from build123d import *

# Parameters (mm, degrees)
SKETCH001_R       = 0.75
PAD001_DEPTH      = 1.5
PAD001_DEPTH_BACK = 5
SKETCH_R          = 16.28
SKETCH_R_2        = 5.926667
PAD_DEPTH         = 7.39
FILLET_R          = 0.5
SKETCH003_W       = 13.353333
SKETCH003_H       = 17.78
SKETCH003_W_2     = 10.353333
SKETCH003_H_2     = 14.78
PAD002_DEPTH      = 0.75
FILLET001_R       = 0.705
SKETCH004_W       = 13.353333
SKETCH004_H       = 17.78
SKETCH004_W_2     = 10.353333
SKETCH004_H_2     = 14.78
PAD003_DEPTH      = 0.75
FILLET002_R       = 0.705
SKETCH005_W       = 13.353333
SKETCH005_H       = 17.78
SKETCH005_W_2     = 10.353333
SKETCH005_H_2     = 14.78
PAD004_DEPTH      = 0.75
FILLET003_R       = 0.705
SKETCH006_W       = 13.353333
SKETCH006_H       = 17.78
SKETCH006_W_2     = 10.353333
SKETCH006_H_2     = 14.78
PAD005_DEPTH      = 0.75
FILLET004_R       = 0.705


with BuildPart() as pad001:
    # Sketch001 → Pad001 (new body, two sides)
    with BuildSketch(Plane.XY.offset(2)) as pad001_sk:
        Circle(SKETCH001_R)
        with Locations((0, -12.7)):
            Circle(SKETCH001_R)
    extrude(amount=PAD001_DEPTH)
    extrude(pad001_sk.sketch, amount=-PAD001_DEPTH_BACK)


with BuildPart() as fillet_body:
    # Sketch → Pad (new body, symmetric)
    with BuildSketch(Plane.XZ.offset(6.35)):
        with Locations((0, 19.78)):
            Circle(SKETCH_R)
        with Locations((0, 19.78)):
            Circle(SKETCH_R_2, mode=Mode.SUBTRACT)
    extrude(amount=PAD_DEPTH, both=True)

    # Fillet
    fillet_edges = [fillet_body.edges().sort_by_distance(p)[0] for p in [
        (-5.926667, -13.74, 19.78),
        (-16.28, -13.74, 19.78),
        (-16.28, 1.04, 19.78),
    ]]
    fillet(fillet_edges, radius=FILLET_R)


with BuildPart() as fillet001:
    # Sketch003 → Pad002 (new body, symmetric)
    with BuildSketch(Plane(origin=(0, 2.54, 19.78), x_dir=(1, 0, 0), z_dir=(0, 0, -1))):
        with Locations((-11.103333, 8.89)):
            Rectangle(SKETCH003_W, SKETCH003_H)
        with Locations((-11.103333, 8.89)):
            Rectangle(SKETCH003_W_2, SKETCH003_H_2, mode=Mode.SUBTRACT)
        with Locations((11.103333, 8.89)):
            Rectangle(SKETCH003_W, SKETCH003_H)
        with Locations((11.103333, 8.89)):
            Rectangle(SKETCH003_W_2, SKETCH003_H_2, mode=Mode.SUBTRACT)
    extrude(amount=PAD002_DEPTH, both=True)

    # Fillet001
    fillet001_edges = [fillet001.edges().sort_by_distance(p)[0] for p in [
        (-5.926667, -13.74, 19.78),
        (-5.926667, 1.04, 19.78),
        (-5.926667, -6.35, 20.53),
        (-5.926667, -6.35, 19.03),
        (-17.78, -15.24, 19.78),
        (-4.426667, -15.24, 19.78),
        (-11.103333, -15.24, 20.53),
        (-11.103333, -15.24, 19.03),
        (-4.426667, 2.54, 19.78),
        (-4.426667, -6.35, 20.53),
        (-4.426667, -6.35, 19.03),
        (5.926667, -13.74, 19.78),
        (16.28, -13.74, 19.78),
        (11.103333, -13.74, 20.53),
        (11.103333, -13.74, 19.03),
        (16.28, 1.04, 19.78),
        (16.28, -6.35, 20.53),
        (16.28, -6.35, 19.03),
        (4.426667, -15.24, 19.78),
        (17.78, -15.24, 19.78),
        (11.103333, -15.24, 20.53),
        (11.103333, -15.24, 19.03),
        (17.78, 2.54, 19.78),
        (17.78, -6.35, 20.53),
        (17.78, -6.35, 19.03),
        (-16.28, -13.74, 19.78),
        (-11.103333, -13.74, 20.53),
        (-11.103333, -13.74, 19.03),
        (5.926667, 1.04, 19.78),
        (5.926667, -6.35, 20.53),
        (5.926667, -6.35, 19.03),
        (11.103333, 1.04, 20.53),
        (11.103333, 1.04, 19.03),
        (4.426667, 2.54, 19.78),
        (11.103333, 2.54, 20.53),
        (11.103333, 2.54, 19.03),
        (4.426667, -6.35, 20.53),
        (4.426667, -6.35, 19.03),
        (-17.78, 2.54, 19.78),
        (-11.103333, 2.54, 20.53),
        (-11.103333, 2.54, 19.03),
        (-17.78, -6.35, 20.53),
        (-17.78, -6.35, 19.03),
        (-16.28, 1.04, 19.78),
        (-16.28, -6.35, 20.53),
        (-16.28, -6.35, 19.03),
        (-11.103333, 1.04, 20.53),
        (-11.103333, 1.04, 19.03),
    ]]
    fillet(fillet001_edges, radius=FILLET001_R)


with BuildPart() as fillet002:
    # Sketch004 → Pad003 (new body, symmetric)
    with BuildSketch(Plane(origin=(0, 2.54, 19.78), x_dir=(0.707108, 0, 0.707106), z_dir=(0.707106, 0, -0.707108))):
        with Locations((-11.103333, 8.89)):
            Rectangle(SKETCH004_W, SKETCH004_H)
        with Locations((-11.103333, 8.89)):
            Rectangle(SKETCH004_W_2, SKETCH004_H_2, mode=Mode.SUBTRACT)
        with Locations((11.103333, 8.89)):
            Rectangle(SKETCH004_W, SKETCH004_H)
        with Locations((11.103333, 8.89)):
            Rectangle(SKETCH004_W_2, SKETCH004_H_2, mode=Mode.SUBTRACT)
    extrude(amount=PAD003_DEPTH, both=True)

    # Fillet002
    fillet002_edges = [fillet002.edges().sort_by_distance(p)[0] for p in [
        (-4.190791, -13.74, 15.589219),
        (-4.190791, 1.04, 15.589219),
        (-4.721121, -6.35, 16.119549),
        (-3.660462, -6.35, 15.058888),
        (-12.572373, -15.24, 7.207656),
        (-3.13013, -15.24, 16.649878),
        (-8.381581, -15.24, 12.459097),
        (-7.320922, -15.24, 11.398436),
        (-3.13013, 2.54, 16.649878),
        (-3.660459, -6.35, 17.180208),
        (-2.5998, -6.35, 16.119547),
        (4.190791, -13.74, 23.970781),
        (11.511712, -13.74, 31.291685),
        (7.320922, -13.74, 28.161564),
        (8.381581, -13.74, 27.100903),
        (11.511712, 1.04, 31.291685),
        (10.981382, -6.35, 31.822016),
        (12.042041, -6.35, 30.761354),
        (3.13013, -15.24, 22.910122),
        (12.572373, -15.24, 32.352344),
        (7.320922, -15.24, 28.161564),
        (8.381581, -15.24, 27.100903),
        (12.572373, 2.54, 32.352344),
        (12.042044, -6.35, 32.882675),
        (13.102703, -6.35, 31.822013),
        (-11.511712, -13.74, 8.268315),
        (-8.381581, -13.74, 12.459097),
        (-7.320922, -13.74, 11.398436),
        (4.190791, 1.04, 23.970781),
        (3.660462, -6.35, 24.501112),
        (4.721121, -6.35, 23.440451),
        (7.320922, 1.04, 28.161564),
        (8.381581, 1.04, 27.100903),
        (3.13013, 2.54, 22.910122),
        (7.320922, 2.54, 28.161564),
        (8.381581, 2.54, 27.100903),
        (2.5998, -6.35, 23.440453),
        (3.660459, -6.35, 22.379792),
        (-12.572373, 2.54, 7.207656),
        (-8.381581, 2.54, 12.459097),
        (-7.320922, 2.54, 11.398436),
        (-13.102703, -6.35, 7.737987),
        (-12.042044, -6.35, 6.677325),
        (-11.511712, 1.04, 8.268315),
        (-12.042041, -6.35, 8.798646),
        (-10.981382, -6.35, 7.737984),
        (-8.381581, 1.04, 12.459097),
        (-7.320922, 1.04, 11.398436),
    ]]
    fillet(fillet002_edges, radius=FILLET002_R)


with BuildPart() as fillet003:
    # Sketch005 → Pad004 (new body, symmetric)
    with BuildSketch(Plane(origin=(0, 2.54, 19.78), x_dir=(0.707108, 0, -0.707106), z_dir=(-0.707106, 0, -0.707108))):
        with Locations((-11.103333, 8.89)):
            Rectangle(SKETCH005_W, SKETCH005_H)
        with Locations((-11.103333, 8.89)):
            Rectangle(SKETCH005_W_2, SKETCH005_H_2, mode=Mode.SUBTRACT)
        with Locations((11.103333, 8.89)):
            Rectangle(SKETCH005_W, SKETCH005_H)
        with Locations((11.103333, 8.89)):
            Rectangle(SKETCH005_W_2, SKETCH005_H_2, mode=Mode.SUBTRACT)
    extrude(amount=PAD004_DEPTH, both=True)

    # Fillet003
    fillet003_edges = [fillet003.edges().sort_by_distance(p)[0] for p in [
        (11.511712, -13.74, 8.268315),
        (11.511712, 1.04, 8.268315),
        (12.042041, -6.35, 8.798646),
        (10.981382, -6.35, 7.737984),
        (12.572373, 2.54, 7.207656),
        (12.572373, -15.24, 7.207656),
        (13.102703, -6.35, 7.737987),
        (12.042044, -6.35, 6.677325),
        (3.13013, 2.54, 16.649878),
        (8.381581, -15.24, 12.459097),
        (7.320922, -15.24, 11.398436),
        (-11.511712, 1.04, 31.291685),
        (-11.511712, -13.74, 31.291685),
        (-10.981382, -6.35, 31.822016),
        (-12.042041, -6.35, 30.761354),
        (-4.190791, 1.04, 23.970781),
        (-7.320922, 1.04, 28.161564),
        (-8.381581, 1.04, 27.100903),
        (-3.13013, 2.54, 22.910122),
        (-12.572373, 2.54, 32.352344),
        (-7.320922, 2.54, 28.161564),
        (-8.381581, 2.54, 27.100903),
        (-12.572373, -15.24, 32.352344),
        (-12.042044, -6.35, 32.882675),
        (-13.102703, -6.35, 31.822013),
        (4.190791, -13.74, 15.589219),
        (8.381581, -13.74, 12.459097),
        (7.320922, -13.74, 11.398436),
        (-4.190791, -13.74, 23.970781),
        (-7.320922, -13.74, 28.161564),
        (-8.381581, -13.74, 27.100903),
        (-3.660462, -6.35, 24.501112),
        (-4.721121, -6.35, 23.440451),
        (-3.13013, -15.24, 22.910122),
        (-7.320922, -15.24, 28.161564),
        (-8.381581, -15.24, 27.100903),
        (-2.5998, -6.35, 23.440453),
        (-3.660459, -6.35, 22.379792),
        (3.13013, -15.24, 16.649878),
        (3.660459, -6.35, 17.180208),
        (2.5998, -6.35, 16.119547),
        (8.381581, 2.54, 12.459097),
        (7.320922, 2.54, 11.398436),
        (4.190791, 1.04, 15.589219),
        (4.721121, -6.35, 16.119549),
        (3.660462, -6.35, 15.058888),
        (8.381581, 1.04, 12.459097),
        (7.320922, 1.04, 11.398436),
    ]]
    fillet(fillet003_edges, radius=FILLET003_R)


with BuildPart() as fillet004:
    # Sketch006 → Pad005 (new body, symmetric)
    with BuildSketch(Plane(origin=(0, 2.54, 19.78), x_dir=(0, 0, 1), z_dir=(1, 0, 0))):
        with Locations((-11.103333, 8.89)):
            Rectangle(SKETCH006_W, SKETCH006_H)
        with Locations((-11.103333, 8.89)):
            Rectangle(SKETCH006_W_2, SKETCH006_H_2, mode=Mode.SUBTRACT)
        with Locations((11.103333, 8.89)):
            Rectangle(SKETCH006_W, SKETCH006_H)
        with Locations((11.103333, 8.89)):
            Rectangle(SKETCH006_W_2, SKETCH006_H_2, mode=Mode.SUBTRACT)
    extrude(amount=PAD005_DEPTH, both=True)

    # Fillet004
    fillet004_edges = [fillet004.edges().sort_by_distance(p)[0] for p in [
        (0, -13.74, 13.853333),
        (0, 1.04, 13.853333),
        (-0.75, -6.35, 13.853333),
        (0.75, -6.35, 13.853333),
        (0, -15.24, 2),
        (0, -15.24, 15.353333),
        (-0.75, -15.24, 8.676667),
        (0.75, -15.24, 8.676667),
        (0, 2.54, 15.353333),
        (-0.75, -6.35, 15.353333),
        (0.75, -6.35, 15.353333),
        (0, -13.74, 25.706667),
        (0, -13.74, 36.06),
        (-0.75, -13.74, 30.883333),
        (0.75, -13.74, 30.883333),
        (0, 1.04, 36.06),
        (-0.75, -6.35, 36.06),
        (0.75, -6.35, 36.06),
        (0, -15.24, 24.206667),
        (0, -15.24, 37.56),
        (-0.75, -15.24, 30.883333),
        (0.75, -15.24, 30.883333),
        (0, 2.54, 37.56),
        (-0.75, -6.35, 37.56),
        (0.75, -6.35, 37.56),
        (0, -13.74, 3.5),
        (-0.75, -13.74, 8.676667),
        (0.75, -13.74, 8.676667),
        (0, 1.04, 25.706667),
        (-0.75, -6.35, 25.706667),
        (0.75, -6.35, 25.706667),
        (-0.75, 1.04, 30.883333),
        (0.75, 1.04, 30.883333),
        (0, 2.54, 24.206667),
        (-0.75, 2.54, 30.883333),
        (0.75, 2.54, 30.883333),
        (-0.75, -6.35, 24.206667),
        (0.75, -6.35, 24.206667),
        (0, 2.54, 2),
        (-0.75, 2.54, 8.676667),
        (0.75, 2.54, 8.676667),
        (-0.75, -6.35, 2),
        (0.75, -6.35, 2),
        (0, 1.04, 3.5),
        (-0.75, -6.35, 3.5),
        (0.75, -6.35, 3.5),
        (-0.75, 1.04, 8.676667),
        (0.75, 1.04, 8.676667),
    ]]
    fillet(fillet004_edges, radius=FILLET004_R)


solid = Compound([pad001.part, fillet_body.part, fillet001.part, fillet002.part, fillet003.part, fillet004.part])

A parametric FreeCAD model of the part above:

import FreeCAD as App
import Part
import Sketcher
from FreeCAD import Vector


def edges_at(feature, points):
    """Names of the edges that pass closest to the given points."""
    edges = feature.Shape.Edges
    near = lambda p: min(range(len(edges)), key=lambda i: edges[i].distToShape(Part.Vertex(*p))[0])
    return sorted({f"Edge{near(p) + 1}" for p in points})

doc = App.newDocument("Part")
params = doc.addObject("Spreadsheet::Sheet", "Params")
for row, (alias, value) in enumerate([
    ("sketch1_diameter", "1.5 mm"),
    ("pad1_length", "1.5 mm"),
    ("pad1_length2", "5 mm"),
    ("sketch2_diameter", "32.56 mm"),
    ("pad2_length", "14.78 mm"),
    ("fillet_radius", "0.5 mm"),
    ("sketch3_height", "17.78 mm"),
    ("sketch3_height2", "14.78 mm"),
    ("pad3_length", "1.5 mm"),
    ("fillet2_radius", "0.705 mm"),
    ("sketch4_height", "17.78 mm"),
    ("sketch4_height2", "14.78 mm"),
    ("pad4_length", "1.5 mm"),
    ("fillet3_radius", "0.705 mm"),
    ("sketch5_height", "17.78 mm"),
    ("sketch5_height2", "14.78 mm"),
    ("pad5_length", "1.5 mm"),
    ("fillet4_radius", "0.705 mm"),
    ("sketch6_width", "17.78 mm"),
    ("sketch6_width2", "14.78 mm"),
    ("pad6_length", "1.5 mm"),
    ("fillet5_radius", "0.705 mm"),
], start=1):
    params.set(f"A{row}", alias)
    params.set(f"B{row}", "=" + value)
    params.setAlias(f"B{row}", alias)

body = doc.addObject("PartDesign::Body", "Body")
body.AllowCompound = True

# Sketch on XY plane
sketch1 = doc.addObject("Sketcher::SketchObject", "Sketch")
body.addObject(sketch1)
sketch1.AttachmentSupport = (doc.XY_Plane, [""])
sketch1.MapMode = "FlatFace"
sketch1.AttachmentOffset = App.Placement(Vector(0, 0, 2), App.Rotation())
sketch1.addGeometry([
    Part.Circle(Vector(0, 0, 0), Vector(0, 0, 1), 0.8),
    Part.Circle(Vector(0, -12.7, 0), Vector(0, 0, 1), 0.8),
], False)
sketch1.addConstraint([
    Sketcher.Constraint("Coincident", 0, 3, -1, 1),
    Sketcher.Constraint("Equal", 0, 1),
    Sketcher.Constraint("PointOnObject", 1, 3, -2),
    Sketcher.Constraint("Diameter", 0, 1.5),
    Sketcher.Constraint("DistanceY", 1, 3, -1, 1, 12.7),
])
sketch1.setExpression("Constraints[3]", "Params.sketch1_diameter")
pad1 = doc.addObject("PartDesign::Pad", "Pad")
body.addObject(pad1)
pad1.Profile = sketch1
pad1.Type = "TwoLengths"
pad1.setExpression("Length", "Params.pad1_length")
pad1.setExpression("Length2", "Params.pad1_length2")
body2 = doc.addObject("PartDesign::Body", "Body001")

# Sketch on XZ plane
sketch2 = doc.addObject("Sketcher::SketchObject", "Sketch001")
body2.addObject(sketch2)
sketch2.AttachmentSupport = (doc.getObject("XZ_Plane001"), [""])
sketch2.MapMode = "FlatFace"
sketch2.AttachmentOffset = App.Placement(Vector(0, 0, 6.35), App.Rotation())
sketch2.addGeometry([
    Part.Circle(Vector(0, 20, 0), Vector(0, 0, 1), 16),
    Part.Circle(Vector(0, 20, 0), Vector(0, 0, 1), 6),
], False)
sketch2.addConstraint([
    Sketcher.Constraint("Coincident", 1, 3, 0, 3),
    Sketcher.Constraint("PointOnObject", 0, 3, -2),
    Sketcher.Constraint("Diameter", 0, 32.56),
    Sketcher.Constraint("DistanceY", -1, 1, 0, 3, 19.78),
    Sketcher.Constraint("Diameter", 1, 11.853334),
])
sketch2.setExpression("Constraints[2]", "Params.sketch2_diameter")
pad2 = doc.addObject("PartDesign::Pad", "Pad001")
body2.addObject(pad2)
pad2.Profile = sketch2
pad2.setExpression("Length", "Params.pad2_length")
pad2.Midplane = True
doc.recompute()

fillet = doc.addObject("PartDesign::Fillet", "Fillet")
body2.addObject(fillet)
fillet.Base = (pad2, edges_at(pad2, [(-5.927, -13.74, 19.78), (-16.28, -13.74, 19.78), (-16.28, 1.04, 19.78)]))
fillet.setExpression("Radius", "Params.fillet_radius")
body3 = doc.addObject("PartDesign::Body", "Body002")
body3.AllowCompound = True

# Sketch on XY plane
sketch3 = doc.addObject("Sketcher::SketchObject", "Sketch002")
body3.addObject(sketch3)
sketch3.AttachmentSupport = (doc.getObject("XY_Plane002"), [""])
sketch3.MapMode = "FlatFace"
sketch3.AttachmentOffset = App.Placement(Vector(0, 0, 19.78), App.Rotation())
sketch3.addGeometry([
    Part.LineSegment(Vector(-18, -15, 0), Vector(-18, 3, 0)),  # 0
    Part.LineSegment(Vector(-18, 3, 0), Vector(-4, 3, 0)),  # 1
    Part.LineSegment(Vector(-4, 3, 0), Vector(-4, -15, 0)),  # 2
    Part.LineSegment(Vector(-4, -15, 0), Vector(-18, -15, 0)),  # 3
    Part.LineSegment(Vector(-6, 1, 0), Vector(-16, 1, 0)),  # 4
    Part.LineSegment(Vector(-16, 1, 0), Vector(-16, -14, 0)),  # 5
    Part.LineSegment(Vector(-16, -14, 0), Vector(-6, -14, 0)),  # 6
    Part.LineSegment(Vector(-6, -14, 0), Vector(-6, 1, 0)),  # 7
    Part.LineSegment(Vector(4, -15, 0), Vector(4, 3, 0)),  # 8
    Part.LineSegment(Vector(4, 3, 0), Vector(18, 3, 0)),  # 9
    Part.LineSegment(Vector(18, 3, 0), Vector(18, -15, 0)),  # 10
    Part.LineSegment(Vector(18, -15, 0), Vector(4, -15, 0)),  # 11
    Part.LineSegment(Vector(16, 1, 0), Vector(6, 1, 0)),  # 12
    Part.LineSegment(Vector(6, 1, 0), Vector(6, -14, 0)),  # 13
    Part.LineSegment(Vector(6, -14, 0), Vector(16, -14, 0)),  # 14
    Part.LineSegment(Vector(16, -14, 0), Vector(16, 1, 0)),  # 15
], False)
sketch3.addConstraint([
    Sketcher.Constraint("Coincident", 0, 2, 1, 1),
    Sketcher.Constraint("Coincident", 1, 2, 2, 1),
    Sketcher.Constraint("Coincident", 2, 2, 3, 1),
    Sketcher.Constraint("Coincident", 3, 2, 0, 1),
    Sketcher.Constraint("Coincident", 4, 2, 5, 1),
    Sketcher.Constraint("Coincident", 5, 2, 6, 1),
    Sketcher.Constraint("Coincident", 6, 2, 7, 1),
    Sketcher.Constraint("Coincident", 7, 2, 4, 1),
    Sketcher.Constraint("Coincident", 8, 2, 9, 1),
    Sketcher.Constraint("Coincident", 9, 2, 10, 1),
    Sketcher.Constraint("Coincident", 10, 2, 11, 1),
    Sketcher.Constraint("Coincident", 11, 2, 8, 1),
    Sketcher.Constraint("Coincident", 12, 2, 13, 1),
    Sketcher.Constraint("Coincident", 13, 2, 14, 1),
    Sketcher.Constraint("Coincident", 14, 2, 15, 1),
    Sketcher.Constraint("Coincident", 15, 2, 12, 1),
    Sketcher.Constraint("Vertical", 0),
    Sketcher.Constraint("Horizontal", 1),
    Sketcher.Constraint("Vertical", 2),
    Sketcher.Constraint("Horizontal", 3),
    Sketcher.Constraint("Horizontal", 4),
    Sketcher.Constraint("Vertical", 5),
    Sketcher.Constraint("Horizontal", 6),
    Sketcher.Constraint("Vertical", 7),
    Sketcher.Constraint("Vertical", 8),
    Sketcher.Constraint("Horizontal", 9),
    Sketcher.Constraint("Vertical", 10),
    Sketcher.Constraint("Horizontal", 11),
    Sketcher.Constraint("Horizontal", 12),
    Sketcher.Constraint("Vertical", 13),
    Sketcher.Constraint("Horizontal", 14),
    Sketcher.Constraint("Vertical", 15),
    Sketcher.Constraint("Symmetric", 1, 2, 8, 2, -2),
    Sketcher.Constraint("Symmetric", 3, 2, 10, 2, -2),
    Sketcher.Constraint("Symmetric", 7, 2, 12, 2, -2),
    Sketcher.Constraint("Symmetric", 5, 2, 14, 2, -2),
    Sketcher.Constraint("DistanceY", 0, 1, 0, 2, 17.78),
    Sketcher.Constraint("DistanceY", 5, 2, 5, 1, 14.78),
    Sketcher.Constraint("DistanceX", 0, 2, 4, 2, 1.5),
    Sketcher.Constraint("DistanceY", 4, 2, 0, 2, 1.5),
    Sketcher.Constraint("DistanceX", 6, 2, 2, 2, 1.5),
    Sketcher.Constraint("DistanceX", 0, 2, -1, 1, 17.779999),
    Sketcher.Constraint("DistanceY", -1, 1, 0, 2, 2.54),
    Sketcher.Constraint("DistanceX", 1, 1, 1, 2, 13.353333),
])
sketch3.setExpression("Constraints[36]", "Params.sketch3_height")
sketch3.setExpression("Constraints[37]", "Params.sketch3_height2")
pad3 = doc.addObject("PartDesign::Pad", "Pad002")
body3.addObject(pad3)
pad3.Profile = sketch3
pad3.setExpression("Length", "Params.pad3_length")
pad3.Midplane = True
doc.recompute()

fillet2 = doc.addObject("PartDesign::Fillet", "Fillet001")
body3.addObject(fillet2)
fillet2.Base = (pad3, ["Edge1"])
fillet2.UseAllEdges = True
fillet2.setExpression("Radius", "Params.fillet2_radius")
body4 = doc.addObject("PartDesign::Body", "Body003")
body4.AllowCompound = True

# Sketch on an angled plane
sketch4 = doc.addObject("Sketcher::SketchObject", "Sketch003")
body4.addObject(sketch4)
sketch4.Placement = App.Placement(Vector(0, 2.54, 19.78), App.Rotation(Vector(0.707107781, 0, 0.707105781), Vector(0, -0.999999999, 0), Vector(0.707105781, 0, -0.707107781), "ZXY"))
sketch4.addGeometry([
    Part.LineSegment(Vector(-18, 18, 0), Vector(-18, 0, 0)),  # 0
    Part.LineSegment(Vector(-18, 0, 0), Vector(-4, 0, 0)),  # 1
    Part.LineSegment(Vector(-4, 0, 0), Vector(-4, 18, 0)),  # 2
    Part.LineSegment(Vector(-4, 18, 0), Vector(-18, 18, 0)),  # 3
    Part.LineSegment(Vector(-6, 1, 0), Vector(-16, 1, 0)),  # 4
    Part.LineSegment(Vector(-16, 1, 0), Vector(-16, 16, 0)),  # 5
    Part.LineSegment(Vector(-16, 16, 0), Vector(-6, 16, 0)),  # 6
    Part.LineSegment(Vector(-6, 16, 0), Vector(-6, 1, 0)),  # 7
    Part.LineSegment(Vector(4, 18, 0), Vector(4, 0, 0)),  # 8
    Part.LineSegment(Vector(4, 0, 0), Vector(18, 0, 0)),  # 9
    Part.LineSegment(Vector(18, 0, 0), Vector(18, 18, 0)),  # 10
    Part.LineSegment(Vector(18, 18, 0), Vector(4, 18, 0)),  # 11
    Part.LineSegment(Vector(16, 1, 0), Vector(6, 1, 0)),  # 12
    Part.LineSegment(Vector(6, 1, 0), Vector(6, 16, 0)),  # 13
    Part.LineSegment(Vector(6, 16, 0), Vector(16, 16, 0)),  # 14
    Part.LineSegment(Vector(16, 16, 0), Vector(16, 1, 0)),  # 15
], False)
sketch4.addConstraint([
    Sketcher.Constraint("Coincident", 0, 2, 1, 1),
    Sketcher.Constraint("Coincident", 1, 2, 2, 1),
    Sketcher.Constraint("Coincident", 2, 2, 3, 1),
    Sketcher.Constraint("Coincident", 3, 2, 0, 1),
    Sketcher.Constraint("Coincident", 4, 2, 5, 1),
    Sketcher.Constraint("Coincident", 5, 2, 6, 1),
    Sketcher.Constraint("Coincident", 6, 2, 7, 1),
    Sketcher.Constraint("Coincident", 7, 2, 4, 1),
    Sketcher.Constraint("Coincident", 8, 2, 9, 1),
    Sketcher.Constraint("Coincident", 9, 2, 10, 1),
    Sketcher.Constraint("Coincident", 10, 2, 11, 1),
    Sketcher.Constraint("Coincident", 11, 2, 8, 1),
    Sketcher.Constraint("Coincident", 12, 2, 13, 1),
    Sketcher.Constraint("Coincident", 13, 2, 14, 1),
    Sketcher.Constraint("Coincident", 14, 2, 15, 1),
    Sketcher.Constraint("Coincident", 15, 2, 12, 1),
    Sketcher.Constraint("Vertical", 0),
    Sketcher.Constraint("Horizontal", 1),
    Sketcher.Constraint("Vertical", 2),
    Sketcher.Constraint("Horizontal", 3),
    Sketcher.Constraint("Horizontal", 4),
    Sketcher.Constraint("Vertical", 5),
    Sketcher.Constraint("Horizontal", 6),
    Sketcher.Constraint("Vertical", 7),
    Sketcher.Constraint("Vertical", 8),
    Sketcher.Constraint("Horizontal", 9),
    Sketcher.Constraint("Vertical", 10),
    Sketcher.Constraint("Horizontal", 11),
    Sketcher.Constraint("Horizontal", 12),
    Sketcher.Constraint("Vertical", 13),
    Sketcher.Constraint("Horizontal", 14),
    Sketcher.Constraint("Vertical", 15),
    Sketcher.Constraint("Symmetric", 1, 2, 8, 2, -1, 1),
    Sketcher.Constraint("Symmetric", 0, 2, 9, 2, -2),
    Sketcher.Constraint("Symmetric", 7, 2, 12, 2, -2),
    Sketcher.Constraint("Symmetric", 5, 2, 14, 2, -2),
    Sketcher.Constraint("Horizontal", 3, 2, 10, 2),
    Sketcher.Constraint("DistanceY", 0, 2, 0, 1, 17.78),
    Sketcher.Constraint("DistanceY", 5, 1, 5, 2, 14.78),
    Sketcher.Constraint("DistanceY", -1, 1, 4, 2, 1.5),
    Sketcher.Constraint("DistanceX", 0, 2, 4, 2, 1.5),
    Sketcher.Constraint("DistanceX", 6, 2, 2, 2, 1.5),
    Sketcher.Constraint("DistanceX", 0, 2, -1, 1, 17.779999),
    Sketcher.Constraint("DistanceX", 1, 1, 1, 2, 13.353333),
])
sketch4.setExpression("Constraints[37]", "Params.sketch4_height")
sketch4.setExpression("Constraints[38]", "Params.sketch4_height2")
pad4 = doc.addObject("PartDesign::Pad", "Pad003")
body4.addObject(pad4)
pad4.Profile = sketch4
pad4.setExpression("Length", "Params.pad4_length")
pad4.Midplane = True
doc.recompute()

fillet3 = doc.addObject("PartDesign::Fillet", "Fillet002")
body4.addObject(fillet3)
fillet3.Base = (pad4, ["Edge1"])
fillet3.UseAllEdges = True
fillet3.setExpression("Radius", "Params.fillet3_radius")
body5 = doc.addObject("PartDesign::Body", "Body004")
body5.AllowCompound = True

# Sketch on an angled plane
sketch5 = doc.addObject("Sketcher::SketchObject", "Sketch004")
body5.addObject(sketch5)
sketch5.Placement = App.Placement(Vector(0, 2.54, 19.78), App.Rotation(Vector(0.707107781, 0, -0.707105781), Vector(0, -0.999999999, 0), Vector(-0.707105781, 0, -0.707107781), "ZXY"))
sketch5.addGeometry([
    Part.LineSegment(Vector(-18, 18, 0), Vector(-18, 0, 0)),  # 0
    Part.LineSegment(Vector(-18, 0, 0), Vector(-4, 0, 0)),  # 1
    Part.LineSegment(Vector(-4, 0, 0), Vector(-4, 18, 0)),  # 2
    Part.LineSegment(Vector(-4, 18, 0), Vector(-18, 18, 0)),  # 3
    Part.LineSegment(Vector(-6, 1, 0), Vector(-16, 1, 0)),  # 4
    Part.LineSegment(Vector(-16, 1, 0), Vector(-16, 16, 0)),  # 5
    Part.LineSegment(Vector(-16, 16, 0), Vector(-6, 16, 0)),  # 6
    Part.LineSegment(Vector(-6, 16, 0), Vector(-6, 1, 0)),  # 7
    Part.LineSegment(Vector(4, 18, 0), Vector(4, 0, 0)),  # 8
    Part.LineSegment(Vector(4, 0, 0), Vector(18, 0, 0)),  # 9
    Part.LineSegment(Vector(18, 0, 0), Vector(18, 18, 0)),  # 10
    Part.LineSegment(Vector(18, 18, 0), Vector(4, 18, 0)),  # 11
    Part.LineSegment(Vector(16, 1, 0), Vector(6, 1, 0)),  # 12
    Part.LineSegment(Vector(6, 1, 0), Vector(6, 16, 0)),  # 13
    Part.LineSegment(Vector(6, 16, 0), Vector(16, 16, 0)),  # 14
    Part.LineSegment(Vector(16, 16, 0), Vector(16, 1, 0)),  # 15
], False)
sketch5.addConstraint([
    Sketcher.Constraint("Coincident", 0, 2, 1, 1),
    Sketcher.Constraint("Coincident", 1, 2, 2, 1),
    Sketcher.Constraint("Coincident", 2, 2, 3, 1),
    Sketcher.Constraint("Coincident", 3, 2, 0, 1),
    Sketcher.Constraint("Coincident", 4, 2, 5, 1),
    Sketcher.Constraint("Coincident", 5, 2, 6, 1),
    Sketcher.Constraint("Coincident", 6, 2, 7, 1),
    Sketcher.Constraint("Coincident", 7, 2, 4, 1),
    Sketcher.Constraint("Coincident", 8, 2, 9, 1),
    Sketcher.Constraint("Coincident", 9, 2, 10, 1),
    Sketcher.Constraint("Coincident", 10, 2, 11, 1),
    Sketcher.Constraint("Coincident", 11, 2, 8, 1),
    Sketcher.Constraint("Coincident", 12, 2, 13, 1),
    Sketcher.Constraint("Coincident", 13, 2, 14, 1),
    Sketcher.Constraint("Coincident", 14, 2, 15, 1),
    Sketcher.Constraint("Coincident", 15, 2, 12, 1),
    Sketcher.Constraint("Vertical", 0),
    Sketcher.Constraint("Horizontal", 1),
    Sketcher.Constraint("Vertical", 2),
    Sketcher.Constraint("Horizontal", 3),
    Sketcher.Constraint("Horizontal", 4),
    Sketcher.Constraint("Vertical", 5),
    Sketcher.Constraint("Horizontal", 6),
    Sketcher.Constraint("Vertical", 7),
    Sketcher.Constraint("Vertical", 8),
    Sketcher.Constraint("Horizontal", 9),
    Sketcher.Constraint("Vertical", 10),
    Sketcher.Constraint("Horizontal", 11),
    Sketcher.Constraint("Horizontal", 12),
    Sketcher.Constraint("Vertical", 13),
    Sketcher.Constraint("Horizontal", 14),
    Sketcher.Constraint("Vertical", 15),
    Sketcher.Constraint("Symmetric", 1, 2, 8, 2, -1, 1),
    Sketcher.Constraint("Symmetric", 0, 2, 9, 2, -2),
    Sketcher.Constraint("Symmetric", 7, 2, 12, 2, -2),
    Sketcher.Constraint("Symmetric", 5, 2, 14, 2, -2),
    Sketcher.Constraint("Horizontal", 3, 2, 10, 2),
    Sketcher.Constraint("DistanceY", 0, 2, 0, 1, 17.78),
    Sketcher.Constraint("DistanceY", 5, 1, 5, 2, 14.78),
    Sketcher.Constraint("DistanceY", -1, 1, 4, 2, 1.5),
    Sketcher.Constraint("DistanceX", 0, 2, 4, 2, 1.5),
    Sketcher.Constraint("DistanceX", 6, 2, 2, 2, 1.5),
    Sketcher.Constraint("DistanceX", 0, 2, -1, 1, 17.779999),
    Sketcher.Constraint("DistanceX", 1, 1, 1, 2, 13.353333),
])
sketch5.setExpression("Constraints[37]", "Params.sketch5_height")
sketch5.setExpression("Constraints[38]", "Params.sketch5_height2")
pad5 = doc.addObject("PartDesign::Pad", "Pad004")
body5.addObject(pad5)
pad5.Profile = sketch5
pad5.setExpression("Length", "Params.pad5_length")
pad5.Midplane = True
doc.recompute()

fillet4 = doc.addObject("PartDesign::Fillet", "Fillet003")
body5.addObject(fillet4)
fillet4.Base = (pad5, ["Edge1"])
fillet4.UseAllEdges = True
fillet4.setExpression("Radius", "Params.fillet4_radius")
body6 = doc.addObject("PartDesign::Body", "Body005")
body6.AllowCompound = True

# Sketch on YZ plane
sketch6 = doc.addObject("Sketcher::SketchObject", "Sketch005")
body6.addObject(sketch6)
sketch6.AttachmentSupport = (doc.getObject("YZ_Plane005"), [""])
sketch6.MapMode = "FlatFace"
sketch6.addGeometry([
    Part.LineSegment(Vector(-15, 2, 0), Vector(3, 2, 0)),  # 0
    Part.LineSegment(Vector(3, 2, 0), Vector(3, 15, 0)),  # 1
    Part.LineSegment(Vector(3, 15, 0), Vector(-15, 15, 0)),  # 2
    Part.LineSegment(Vector(-15, 15, 0), Vector(-15, 2, 0)),  # 3
    Part.LineSegment(Vector(1, 14, 0), Vector(1, 4, 0)),  # 4
    Part.LineSegment(Vector(1, 4, 0), Vector(-14, 4, 0)),  # 5
    Part.LineSegment(Vector(-14, 4, 0), Vector(-14, 14, 0)),  # 6
    Part.LineSegment(Vector(-14, 14, 0), Vector(1, 14, 0)),  # 7
    Part.LineSegment(Vector(-15, 24, 0), Vector(3, 24, 0)),  # 8
    Part.LineSegment(Vector(3, 24, 0), Vector(3, 38, 0)),  # 9
    Part.LineSegment(Vector(3, 38, 0), Vector(-15, 38, 0)),  # 10
    Part.LineSegment(Vector(-15, 38, 0), Vector(-15, 24, 0)),  # 11
    Part.LineSegment(Vector(1, 36, 0), Vector(1, 26, 0)),  # 12
    Part.LineSegment(Vector(1, 26, 0), Vector(-14, 26, 0)),  # 13
    Part.LineSegment(Vector(-14, 26, 0), Vector(-14, 36, 0)),  # 14
    Part.LineSegment(Vector(-14, 36, 0), Vector(1, 36, 0)),  # 15
], False)
sketch6.addConstraint([
    Sketcher.Constraint("Coincident", 0, 2, 1, 1),
    Sketcher.Constraint("Coincident", 1, 2, 2, 1),
    Sketcher.Constraint("Coincident", 2, 2, 3, 1),
    Sketcher.Constraint("Coincident", 3, 2, 0, 1),
    Sketcher.Constraint("Coincident", 4, 2, 5, 1),
    Sketcher.Constraint("Coincident", 5, 2, 6, 1),
    Sketcher.Constraint("Coincident", 6, 2, 7, 1),
    Sketcher.Constraint("Coincident", 7, 2, 4, 1),
    Sketcher.Constraint("Coincident", 8, 2, 9, 1),
    Sketcher.Constraint("Coincident", 9, 2, 10, 1),
    Sketcher.Constraint("Coincident", 10, 2, 11, 1),
    Sketcher.Constraint("Coincident", 11, 2, 8, 1),
    Sketcher.Constraint("Coincident", 12, 2, 13, 1),
    Sketcher.Constraint("Coincident", 13, 2, 14, 1),
    Sketcher.Constraint("Coincident", 14, 2, 15, 1),
    Sketcher.Constraint("Coincident", 15, 2, 12, 1),
    Sketcher.Constraint("Horizontal", 0),
    Sketcher.Constraint("Vertical", 1),
    Sketcher.Constraint("Horizontal", 2),
    Sketcher.Constraint("Vertical", 3),
    Sketcher.Constraint("Vertical", 4),
    Sketcher.Constraint("Horizontal", 5),
    Sketcher.Constraint("Vertical", 6),
    Sketcher.Constraint("Horizontal", 7),
    Sketcher.Constraint("Horizontal", 8),
    Sketcher.Constraint("Vertical", 9),
    Sketcher.Constraint("Horizontal", 10),
    Sketcher.Constraint("Vertical", 11),
    Sketcher.Constraint("Vertical", 12),
    Sketcher.Constraint("Horizontal", 13),
    Sketcher.Constraint("Vertical", 14),
    Sketcher.Constraint("Horizontal", 15),
    Sketcher.Constraint("Vertical", 1, 2, 8, 2),
    Sketcher.Constraint("Vertical", 3, 2, 10, 2),
    Sketcher.Constraint("Vertical", 7, 2, 12, 2),
    Sketcher.Constraint("Vertical", 6, 2, 13, 2),
    Sketcher.Constraint("Equal", 3, 9),
    Sketcher.Constraint("Equal", 6, 12),
    Sketcher.Constraint("DistanceY", -1, 1, 0, 2, 2.000001),
    Sketcher.Constraint("DistanceX", 0, 1, 0, 2, 17.78),
    Sketcher.Constraint("DistanceX", 5, 2, 5, 1, 14.78),
    Sketcher.Constraint("DistanceY", -1, 1, 4, 2, 3.500001),
    Sketcher.Constraint("DistanceX", 4, 2, 0, 2, 1.5),
    Sketcher.Constraint("DistanceY", 6, 2, 2, 2, 1.5),
    Sketcher.Constraint("DistanceY", 8, 2, 12, 2, 1.5),
    Sketcher.Constraint("DistanceX", -1, 1, 0, 2, 2.54),
    Sketcher.Constraint("DistanceY", -1, 1, 9, 2, 37.56),
    Sketcher.Constraint("DistanceY", 1, 1, 1, 2, 13.353333),
])
sketch6.setExpression("Constraints[39]", "Params.sketch6_width")
sketch6.setExpression("Constraints[40]", "Params.sketch6_width2")
pad6 = doc.addObject("PartDesign::Pad", "Pad005")
body6.addObject(pad6)
pad6.Profile = sketch6
pad6.setExpression("Length", "Params.pad6_length")
pad6.Midplane = True
doc.recompute()

fillet5 = doc.addObject("PartDesign::Fillet", "Fillet004")
body6.addObject(fillet5)
fillet5.Base = (pad6, ["Edge1"])
fillet5.UseAllEdges = True
fillet5.setExpression("Radius", "Params.fillet5_radius")

doc.recompute()
